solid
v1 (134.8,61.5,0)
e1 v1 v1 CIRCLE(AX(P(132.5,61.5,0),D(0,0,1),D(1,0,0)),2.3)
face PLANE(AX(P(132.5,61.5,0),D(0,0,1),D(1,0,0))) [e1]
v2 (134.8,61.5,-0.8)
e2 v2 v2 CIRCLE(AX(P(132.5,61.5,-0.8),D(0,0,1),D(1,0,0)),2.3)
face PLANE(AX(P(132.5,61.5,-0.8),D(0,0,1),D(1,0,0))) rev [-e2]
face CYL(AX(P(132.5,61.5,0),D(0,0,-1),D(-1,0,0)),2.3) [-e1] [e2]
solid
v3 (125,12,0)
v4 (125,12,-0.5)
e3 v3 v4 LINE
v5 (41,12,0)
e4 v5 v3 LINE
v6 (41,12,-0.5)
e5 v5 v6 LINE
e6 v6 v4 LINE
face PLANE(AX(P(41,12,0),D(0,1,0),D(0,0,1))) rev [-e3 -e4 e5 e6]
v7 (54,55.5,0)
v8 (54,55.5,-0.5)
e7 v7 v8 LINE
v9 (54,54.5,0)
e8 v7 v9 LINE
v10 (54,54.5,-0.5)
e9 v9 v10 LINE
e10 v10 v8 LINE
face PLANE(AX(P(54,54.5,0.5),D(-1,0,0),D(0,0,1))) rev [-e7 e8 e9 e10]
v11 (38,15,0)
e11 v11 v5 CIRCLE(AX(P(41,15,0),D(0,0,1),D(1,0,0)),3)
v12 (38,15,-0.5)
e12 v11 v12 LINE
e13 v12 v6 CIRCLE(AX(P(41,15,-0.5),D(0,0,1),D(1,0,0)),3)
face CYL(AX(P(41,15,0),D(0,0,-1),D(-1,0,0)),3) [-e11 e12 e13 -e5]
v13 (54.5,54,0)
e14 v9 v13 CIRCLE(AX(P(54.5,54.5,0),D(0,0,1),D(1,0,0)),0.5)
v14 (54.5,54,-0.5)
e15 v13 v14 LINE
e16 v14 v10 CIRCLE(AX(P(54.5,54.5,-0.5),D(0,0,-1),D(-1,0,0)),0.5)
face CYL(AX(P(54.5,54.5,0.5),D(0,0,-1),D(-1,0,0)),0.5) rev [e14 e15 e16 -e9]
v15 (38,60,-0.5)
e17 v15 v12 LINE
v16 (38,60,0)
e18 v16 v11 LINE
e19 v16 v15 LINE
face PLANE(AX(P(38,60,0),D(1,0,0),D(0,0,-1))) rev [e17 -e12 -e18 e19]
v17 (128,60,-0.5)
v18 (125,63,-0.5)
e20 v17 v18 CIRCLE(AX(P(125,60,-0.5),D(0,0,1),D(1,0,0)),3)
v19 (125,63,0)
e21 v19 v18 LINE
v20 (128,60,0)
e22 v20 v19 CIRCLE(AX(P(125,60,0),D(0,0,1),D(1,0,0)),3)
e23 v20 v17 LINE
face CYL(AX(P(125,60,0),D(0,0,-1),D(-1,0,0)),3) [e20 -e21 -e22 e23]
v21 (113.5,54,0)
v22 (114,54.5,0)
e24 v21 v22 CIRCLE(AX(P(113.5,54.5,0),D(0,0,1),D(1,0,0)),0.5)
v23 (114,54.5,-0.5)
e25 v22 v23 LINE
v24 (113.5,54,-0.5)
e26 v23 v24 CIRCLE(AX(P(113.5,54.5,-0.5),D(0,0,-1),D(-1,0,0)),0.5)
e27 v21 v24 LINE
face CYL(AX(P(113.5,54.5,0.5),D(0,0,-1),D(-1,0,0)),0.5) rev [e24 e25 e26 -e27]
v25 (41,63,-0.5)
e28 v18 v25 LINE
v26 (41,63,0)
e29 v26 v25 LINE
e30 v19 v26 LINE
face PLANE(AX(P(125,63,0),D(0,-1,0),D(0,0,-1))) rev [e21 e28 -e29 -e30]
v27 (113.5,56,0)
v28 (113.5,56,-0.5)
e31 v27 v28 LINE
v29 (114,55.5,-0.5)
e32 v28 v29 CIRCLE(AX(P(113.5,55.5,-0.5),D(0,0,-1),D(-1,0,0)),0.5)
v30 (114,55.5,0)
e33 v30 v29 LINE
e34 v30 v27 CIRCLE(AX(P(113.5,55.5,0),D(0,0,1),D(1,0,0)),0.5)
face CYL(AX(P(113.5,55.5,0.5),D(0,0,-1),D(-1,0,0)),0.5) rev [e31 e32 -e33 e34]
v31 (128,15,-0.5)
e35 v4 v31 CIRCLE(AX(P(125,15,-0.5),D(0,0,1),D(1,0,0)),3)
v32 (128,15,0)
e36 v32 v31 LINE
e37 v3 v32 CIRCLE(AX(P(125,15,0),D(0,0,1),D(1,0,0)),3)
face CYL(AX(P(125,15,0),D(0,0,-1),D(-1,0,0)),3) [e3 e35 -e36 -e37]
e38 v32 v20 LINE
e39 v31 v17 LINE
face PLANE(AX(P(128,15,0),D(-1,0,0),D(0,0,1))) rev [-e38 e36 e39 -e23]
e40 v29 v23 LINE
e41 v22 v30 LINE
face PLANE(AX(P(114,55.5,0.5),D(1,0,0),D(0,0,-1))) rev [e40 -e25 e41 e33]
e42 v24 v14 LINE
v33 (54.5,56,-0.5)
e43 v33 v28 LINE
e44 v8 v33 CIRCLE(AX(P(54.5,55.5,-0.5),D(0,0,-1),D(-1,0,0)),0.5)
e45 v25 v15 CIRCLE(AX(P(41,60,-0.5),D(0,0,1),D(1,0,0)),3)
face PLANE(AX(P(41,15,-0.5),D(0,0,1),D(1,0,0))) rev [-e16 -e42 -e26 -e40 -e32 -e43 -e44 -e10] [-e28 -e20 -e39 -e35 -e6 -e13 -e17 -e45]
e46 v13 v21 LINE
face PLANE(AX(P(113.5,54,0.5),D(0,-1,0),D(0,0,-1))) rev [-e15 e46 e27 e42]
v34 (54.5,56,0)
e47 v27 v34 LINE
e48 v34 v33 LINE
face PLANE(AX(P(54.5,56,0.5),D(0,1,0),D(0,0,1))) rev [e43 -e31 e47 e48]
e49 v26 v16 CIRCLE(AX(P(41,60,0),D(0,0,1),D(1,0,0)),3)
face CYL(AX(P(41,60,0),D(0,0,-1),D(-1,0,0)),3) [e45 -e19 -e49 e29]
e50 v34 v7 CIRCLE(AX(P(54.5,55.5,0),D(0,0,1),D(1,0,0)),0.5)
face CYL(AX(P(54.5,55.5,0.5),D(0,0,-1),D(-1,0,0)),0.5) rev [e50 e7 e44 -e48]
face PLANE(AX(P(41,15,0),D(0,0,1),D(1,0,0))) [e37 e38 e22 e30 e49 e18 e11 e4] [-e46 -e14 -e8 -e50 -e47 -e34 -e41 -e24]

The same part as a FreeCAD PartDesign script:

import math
import FreeCAD as App
import Part
import Sketcher
Q = App.Units.Quantity

doc = App.newDocument("Part")
body = doc.addObject("PartDesign::Body", "Body")

# Sketch on XY plane
sketch1 = body.newObject("Sketcher::SketchObject", "Sketch")
sketch1.AttachmentSupport = (doc.getObject("XY_Plane"), [""])
sketch1.MapMode = "FlatFace"
sketch1.AttachmentOffset = App.Placement(App.Vector(0, 0, -0.5), App.Rotation())
sketch1.addGeometry([
    Part.LineSegment(App.Vector(41, 12, 0), App.Vector(125, 12, 0)),  # 0
    Part.ArcOfCircle(Part.Circle(App.Vector(125, 15, 0), App.Vector(0, 0, 1), 3), math.radians(-90), math.radians(0)),  # 1
    Part.LineSegment(App.Vector(128, 15, 0), App.Vector(128, 60, 0)),  # 2
    Part.ArcOfCircle(Part.Circle(App.Vector(125, 60, 0), App.Vector(0, 0, 1), 3), math.radians(0), math.radians(90)),  # 3
    Part.LineSegment(App.Vector(125, 63, 0), App.Vector(41, 63, 0)),  # 4
    Part.ArcOfCircle(Part.Circle(App.Vector(41, 60, 0), App.Vector(0, 0, 1), 3), math.radians(90), math.radians(180)),  # 5
    Part.LineSegment(App.Vector(38, 60, 0), App.Vector(38, 15, 0)),  # 6
    Part.ArcOfCircle(Part.Circle(App.Vector(41, 15, 0), App.Vector(0, 0, 1), 3), math.radians(180), math.radians(270)),  # 7
], False)
sketch1.addConstraint([
    Sketcher.Constraint("Tangent", 0, 2, 1, 1),
    Sketcher.Constraint("Tangent", 1, 2, 2, 1),
    Sketcher.Constraint("Tangent", 2, 2, 3, 1),
    Sketcher.Constraint("Tangent", 3, 2, 4, 1),
    Sketcher.Constraint("Tangent", 4, 2, 5, 1),
    Sketcher.Constraint("Tangent", 5, 2, 6, 1),
    Sketcher.Constraint("Tangent", 6, 2, 7, 1),
    Sketcher.Constraint("Tangent", 7, 2, 0, 1),
    Sketcher.Constraint("Horizontal", 0),
    Sketcher.Constraint("Vertical", 2),
    Sketcher.Constraint("Horizontal", 4),
    Sketcher.Constraint("Vertical", 6),
    Sketcher.Constraint("Equal", 1, 3),
    Sketcher.Constraint("Equal", 3, 5),
    Sketcher.Constraint("Equal", 5, 7),
    Sketcher.Constraint("Radius", 1, Q("3 mm")),
    Sketcher.Constraint("DistanceX", 0, 1, 0, 2, Q("84 mm")),
    Sketcher.Constraint("DistanceY", 2, 1, 2, 2, Q("45 mm")),
    Sketcher.Constraint("DistanceX", -1, 1, 1, 3, Q("125 mm")),
    Sketcher.Constraint("DistanceY", -1, 1, 1, 3, Q("15 mm")),
])
pad1 = body.newObject("PartDesign::Pad", "Pad")
pad1.Profile = sketch1
pad1.Length = 0.5

# Sketch on XY plane
sketch2 = body.newObject("Sketcher::SketchObject", "Sketch001")
sketch2.AttachmentSupport = (doc.getObject("XY_Plane"), [""])
sketch2.MapMode = "FlatFace"
sketch2.AttachmentOffset = App.Placement(App.Vector(0, 0, -0.5), App.Rotation())
sketch2.addGeometry([
    Part.LineSegment(App.Vector(113.5, 54, 0), App.Vector(54.5, 54, 0)),  # 0
    Part.ArcOfCircle(Part.Circle(App.Vector(54.5, 54.5, 0), App.Vector(0, 0, 1), 0.5), math.radians(180), math.radians(270)),  # 1
    Part.LineSegment(App.Vector(54, 54.5, 0), App.Vector(54, 55.5, 0)),  # 2
    Part.ArcOfCircle(Part.Circle(App.Vector(54.5, 55.5, 0), App.Vector(0, 0, 1), 0.5), math.radians(90), math.radians(180)),  # 3
    Part.LineSegment(App.Vector(54.5, 56, 0), App.Vector(113.5, 56, 0)),  # 4
    Part.ArcOfCircle(Part.Circle(App.Vector(113.5, 55.5, 0), App.Vector(0, 0, 1), 0.5), math.radians(0), math.radians(90)),  # 5
    Part.LineSegment(App.Vector(114, 55.5, 0), App.Vector(114, 54.5, 0)),  # 6
    Part.ArcOfCircle(Part.Circle(App.Vector(113.5, 54.5, 0), App.Vector(0, 0, 1), 0.5), math.radians(-90), math.radians(0)),  # 7
], False)
sketch2.addConstraint([
    Sketcher.Constraint("Tangent", 0, 2, 1, 2),
    Sketcher.Constraint("Tangent", 1, 1, 2, 1),
    Sketcher.Constraint("Tangent", 2, 2, 3, 2),
    Sketcher.Constraint("Tangent", 3, 1, 4, 1),
    Sketcher.Constraint("Tangent", 4, 2, 5, 2),
    Sketcher.Constraint("Tangent", 5, 1, 6, 1),
    Sketcher.Constraint("Tangent", 6, 2, 7, 2),
    Sketcher.Constraint("Tangent", 7, 1, 0, 1),
    Sketcher.Constraint("Horizontal", 0),
    Sketcher.Constraint("Vertical", 2),
    Sketcher.Constraint("Horizontal", 4),
    Sketcher.Constraint("Vertical", 6),
    Sketcher.Constraint("Equal", 1, 3),
    Sketcher.Constraint("Equal", 3, 5),
    Sketcher.Constraint("Equal", 5, 7),
    Sketcher.Constraint("Radius", 1, Q("0.5 mm")),
    Sketcher.Constraint("DistanceX", 0, 2, 0, 1, Q("59 mm")),
    Sketcher.Constraint("DistanceY", 2, 1, 2, 2, Q("1 mm")),
    Sketcher.Constraint("DistanceY", -1, 1, 0, 2, Q("54 mm")),
    Sketcher.Constraint("DistanceX", -1, 1, 1, 1, Q("54 mm")),
])
pocket1 = body.newObject("PartDesign::Pocket", "Pocket")
pocket1.Profile = sketch2
pocket1.Length = 1
pocket1.Reversed = True
body2 = doc.addObject("PartDesign::Body", "Body001")

# Sketch on XY plane
sketch3 = body2.newObject("Sketcher::SketchObject", "Sketch002")
sketch3.AttachmentSupport = (doc.getObject("XY_Plane001"), [""])
sketch3.MapMode = "FlatFace"
sketch3.AttachmentOffset = App.Placement(App.Vector(0, 0, -0.8), App.Rotation())
sketch3.addGeometry(Part.Circle(App.Vector(132.5, 61.5, 0), App.Vector(0, 0, 1), 2.3), False)
sketch3.addConstraint([
    Sketcher.Constraint("Diameter", 0, Q("4.6 mm")),
    Sketcher.Constraint("DistanceX", -1, 1, 0, 3, Q("132.5 mm")),
    Sketcher.Constraint("DistanceY", -1, 1, 0, 3, Q("61.5 mm")),
])
pad2 = body2.newObject("PartDesign::Pad", "Pad001")
pad2.Profile = sketch3
pad2.Length = 0.8

doc.recompute()
